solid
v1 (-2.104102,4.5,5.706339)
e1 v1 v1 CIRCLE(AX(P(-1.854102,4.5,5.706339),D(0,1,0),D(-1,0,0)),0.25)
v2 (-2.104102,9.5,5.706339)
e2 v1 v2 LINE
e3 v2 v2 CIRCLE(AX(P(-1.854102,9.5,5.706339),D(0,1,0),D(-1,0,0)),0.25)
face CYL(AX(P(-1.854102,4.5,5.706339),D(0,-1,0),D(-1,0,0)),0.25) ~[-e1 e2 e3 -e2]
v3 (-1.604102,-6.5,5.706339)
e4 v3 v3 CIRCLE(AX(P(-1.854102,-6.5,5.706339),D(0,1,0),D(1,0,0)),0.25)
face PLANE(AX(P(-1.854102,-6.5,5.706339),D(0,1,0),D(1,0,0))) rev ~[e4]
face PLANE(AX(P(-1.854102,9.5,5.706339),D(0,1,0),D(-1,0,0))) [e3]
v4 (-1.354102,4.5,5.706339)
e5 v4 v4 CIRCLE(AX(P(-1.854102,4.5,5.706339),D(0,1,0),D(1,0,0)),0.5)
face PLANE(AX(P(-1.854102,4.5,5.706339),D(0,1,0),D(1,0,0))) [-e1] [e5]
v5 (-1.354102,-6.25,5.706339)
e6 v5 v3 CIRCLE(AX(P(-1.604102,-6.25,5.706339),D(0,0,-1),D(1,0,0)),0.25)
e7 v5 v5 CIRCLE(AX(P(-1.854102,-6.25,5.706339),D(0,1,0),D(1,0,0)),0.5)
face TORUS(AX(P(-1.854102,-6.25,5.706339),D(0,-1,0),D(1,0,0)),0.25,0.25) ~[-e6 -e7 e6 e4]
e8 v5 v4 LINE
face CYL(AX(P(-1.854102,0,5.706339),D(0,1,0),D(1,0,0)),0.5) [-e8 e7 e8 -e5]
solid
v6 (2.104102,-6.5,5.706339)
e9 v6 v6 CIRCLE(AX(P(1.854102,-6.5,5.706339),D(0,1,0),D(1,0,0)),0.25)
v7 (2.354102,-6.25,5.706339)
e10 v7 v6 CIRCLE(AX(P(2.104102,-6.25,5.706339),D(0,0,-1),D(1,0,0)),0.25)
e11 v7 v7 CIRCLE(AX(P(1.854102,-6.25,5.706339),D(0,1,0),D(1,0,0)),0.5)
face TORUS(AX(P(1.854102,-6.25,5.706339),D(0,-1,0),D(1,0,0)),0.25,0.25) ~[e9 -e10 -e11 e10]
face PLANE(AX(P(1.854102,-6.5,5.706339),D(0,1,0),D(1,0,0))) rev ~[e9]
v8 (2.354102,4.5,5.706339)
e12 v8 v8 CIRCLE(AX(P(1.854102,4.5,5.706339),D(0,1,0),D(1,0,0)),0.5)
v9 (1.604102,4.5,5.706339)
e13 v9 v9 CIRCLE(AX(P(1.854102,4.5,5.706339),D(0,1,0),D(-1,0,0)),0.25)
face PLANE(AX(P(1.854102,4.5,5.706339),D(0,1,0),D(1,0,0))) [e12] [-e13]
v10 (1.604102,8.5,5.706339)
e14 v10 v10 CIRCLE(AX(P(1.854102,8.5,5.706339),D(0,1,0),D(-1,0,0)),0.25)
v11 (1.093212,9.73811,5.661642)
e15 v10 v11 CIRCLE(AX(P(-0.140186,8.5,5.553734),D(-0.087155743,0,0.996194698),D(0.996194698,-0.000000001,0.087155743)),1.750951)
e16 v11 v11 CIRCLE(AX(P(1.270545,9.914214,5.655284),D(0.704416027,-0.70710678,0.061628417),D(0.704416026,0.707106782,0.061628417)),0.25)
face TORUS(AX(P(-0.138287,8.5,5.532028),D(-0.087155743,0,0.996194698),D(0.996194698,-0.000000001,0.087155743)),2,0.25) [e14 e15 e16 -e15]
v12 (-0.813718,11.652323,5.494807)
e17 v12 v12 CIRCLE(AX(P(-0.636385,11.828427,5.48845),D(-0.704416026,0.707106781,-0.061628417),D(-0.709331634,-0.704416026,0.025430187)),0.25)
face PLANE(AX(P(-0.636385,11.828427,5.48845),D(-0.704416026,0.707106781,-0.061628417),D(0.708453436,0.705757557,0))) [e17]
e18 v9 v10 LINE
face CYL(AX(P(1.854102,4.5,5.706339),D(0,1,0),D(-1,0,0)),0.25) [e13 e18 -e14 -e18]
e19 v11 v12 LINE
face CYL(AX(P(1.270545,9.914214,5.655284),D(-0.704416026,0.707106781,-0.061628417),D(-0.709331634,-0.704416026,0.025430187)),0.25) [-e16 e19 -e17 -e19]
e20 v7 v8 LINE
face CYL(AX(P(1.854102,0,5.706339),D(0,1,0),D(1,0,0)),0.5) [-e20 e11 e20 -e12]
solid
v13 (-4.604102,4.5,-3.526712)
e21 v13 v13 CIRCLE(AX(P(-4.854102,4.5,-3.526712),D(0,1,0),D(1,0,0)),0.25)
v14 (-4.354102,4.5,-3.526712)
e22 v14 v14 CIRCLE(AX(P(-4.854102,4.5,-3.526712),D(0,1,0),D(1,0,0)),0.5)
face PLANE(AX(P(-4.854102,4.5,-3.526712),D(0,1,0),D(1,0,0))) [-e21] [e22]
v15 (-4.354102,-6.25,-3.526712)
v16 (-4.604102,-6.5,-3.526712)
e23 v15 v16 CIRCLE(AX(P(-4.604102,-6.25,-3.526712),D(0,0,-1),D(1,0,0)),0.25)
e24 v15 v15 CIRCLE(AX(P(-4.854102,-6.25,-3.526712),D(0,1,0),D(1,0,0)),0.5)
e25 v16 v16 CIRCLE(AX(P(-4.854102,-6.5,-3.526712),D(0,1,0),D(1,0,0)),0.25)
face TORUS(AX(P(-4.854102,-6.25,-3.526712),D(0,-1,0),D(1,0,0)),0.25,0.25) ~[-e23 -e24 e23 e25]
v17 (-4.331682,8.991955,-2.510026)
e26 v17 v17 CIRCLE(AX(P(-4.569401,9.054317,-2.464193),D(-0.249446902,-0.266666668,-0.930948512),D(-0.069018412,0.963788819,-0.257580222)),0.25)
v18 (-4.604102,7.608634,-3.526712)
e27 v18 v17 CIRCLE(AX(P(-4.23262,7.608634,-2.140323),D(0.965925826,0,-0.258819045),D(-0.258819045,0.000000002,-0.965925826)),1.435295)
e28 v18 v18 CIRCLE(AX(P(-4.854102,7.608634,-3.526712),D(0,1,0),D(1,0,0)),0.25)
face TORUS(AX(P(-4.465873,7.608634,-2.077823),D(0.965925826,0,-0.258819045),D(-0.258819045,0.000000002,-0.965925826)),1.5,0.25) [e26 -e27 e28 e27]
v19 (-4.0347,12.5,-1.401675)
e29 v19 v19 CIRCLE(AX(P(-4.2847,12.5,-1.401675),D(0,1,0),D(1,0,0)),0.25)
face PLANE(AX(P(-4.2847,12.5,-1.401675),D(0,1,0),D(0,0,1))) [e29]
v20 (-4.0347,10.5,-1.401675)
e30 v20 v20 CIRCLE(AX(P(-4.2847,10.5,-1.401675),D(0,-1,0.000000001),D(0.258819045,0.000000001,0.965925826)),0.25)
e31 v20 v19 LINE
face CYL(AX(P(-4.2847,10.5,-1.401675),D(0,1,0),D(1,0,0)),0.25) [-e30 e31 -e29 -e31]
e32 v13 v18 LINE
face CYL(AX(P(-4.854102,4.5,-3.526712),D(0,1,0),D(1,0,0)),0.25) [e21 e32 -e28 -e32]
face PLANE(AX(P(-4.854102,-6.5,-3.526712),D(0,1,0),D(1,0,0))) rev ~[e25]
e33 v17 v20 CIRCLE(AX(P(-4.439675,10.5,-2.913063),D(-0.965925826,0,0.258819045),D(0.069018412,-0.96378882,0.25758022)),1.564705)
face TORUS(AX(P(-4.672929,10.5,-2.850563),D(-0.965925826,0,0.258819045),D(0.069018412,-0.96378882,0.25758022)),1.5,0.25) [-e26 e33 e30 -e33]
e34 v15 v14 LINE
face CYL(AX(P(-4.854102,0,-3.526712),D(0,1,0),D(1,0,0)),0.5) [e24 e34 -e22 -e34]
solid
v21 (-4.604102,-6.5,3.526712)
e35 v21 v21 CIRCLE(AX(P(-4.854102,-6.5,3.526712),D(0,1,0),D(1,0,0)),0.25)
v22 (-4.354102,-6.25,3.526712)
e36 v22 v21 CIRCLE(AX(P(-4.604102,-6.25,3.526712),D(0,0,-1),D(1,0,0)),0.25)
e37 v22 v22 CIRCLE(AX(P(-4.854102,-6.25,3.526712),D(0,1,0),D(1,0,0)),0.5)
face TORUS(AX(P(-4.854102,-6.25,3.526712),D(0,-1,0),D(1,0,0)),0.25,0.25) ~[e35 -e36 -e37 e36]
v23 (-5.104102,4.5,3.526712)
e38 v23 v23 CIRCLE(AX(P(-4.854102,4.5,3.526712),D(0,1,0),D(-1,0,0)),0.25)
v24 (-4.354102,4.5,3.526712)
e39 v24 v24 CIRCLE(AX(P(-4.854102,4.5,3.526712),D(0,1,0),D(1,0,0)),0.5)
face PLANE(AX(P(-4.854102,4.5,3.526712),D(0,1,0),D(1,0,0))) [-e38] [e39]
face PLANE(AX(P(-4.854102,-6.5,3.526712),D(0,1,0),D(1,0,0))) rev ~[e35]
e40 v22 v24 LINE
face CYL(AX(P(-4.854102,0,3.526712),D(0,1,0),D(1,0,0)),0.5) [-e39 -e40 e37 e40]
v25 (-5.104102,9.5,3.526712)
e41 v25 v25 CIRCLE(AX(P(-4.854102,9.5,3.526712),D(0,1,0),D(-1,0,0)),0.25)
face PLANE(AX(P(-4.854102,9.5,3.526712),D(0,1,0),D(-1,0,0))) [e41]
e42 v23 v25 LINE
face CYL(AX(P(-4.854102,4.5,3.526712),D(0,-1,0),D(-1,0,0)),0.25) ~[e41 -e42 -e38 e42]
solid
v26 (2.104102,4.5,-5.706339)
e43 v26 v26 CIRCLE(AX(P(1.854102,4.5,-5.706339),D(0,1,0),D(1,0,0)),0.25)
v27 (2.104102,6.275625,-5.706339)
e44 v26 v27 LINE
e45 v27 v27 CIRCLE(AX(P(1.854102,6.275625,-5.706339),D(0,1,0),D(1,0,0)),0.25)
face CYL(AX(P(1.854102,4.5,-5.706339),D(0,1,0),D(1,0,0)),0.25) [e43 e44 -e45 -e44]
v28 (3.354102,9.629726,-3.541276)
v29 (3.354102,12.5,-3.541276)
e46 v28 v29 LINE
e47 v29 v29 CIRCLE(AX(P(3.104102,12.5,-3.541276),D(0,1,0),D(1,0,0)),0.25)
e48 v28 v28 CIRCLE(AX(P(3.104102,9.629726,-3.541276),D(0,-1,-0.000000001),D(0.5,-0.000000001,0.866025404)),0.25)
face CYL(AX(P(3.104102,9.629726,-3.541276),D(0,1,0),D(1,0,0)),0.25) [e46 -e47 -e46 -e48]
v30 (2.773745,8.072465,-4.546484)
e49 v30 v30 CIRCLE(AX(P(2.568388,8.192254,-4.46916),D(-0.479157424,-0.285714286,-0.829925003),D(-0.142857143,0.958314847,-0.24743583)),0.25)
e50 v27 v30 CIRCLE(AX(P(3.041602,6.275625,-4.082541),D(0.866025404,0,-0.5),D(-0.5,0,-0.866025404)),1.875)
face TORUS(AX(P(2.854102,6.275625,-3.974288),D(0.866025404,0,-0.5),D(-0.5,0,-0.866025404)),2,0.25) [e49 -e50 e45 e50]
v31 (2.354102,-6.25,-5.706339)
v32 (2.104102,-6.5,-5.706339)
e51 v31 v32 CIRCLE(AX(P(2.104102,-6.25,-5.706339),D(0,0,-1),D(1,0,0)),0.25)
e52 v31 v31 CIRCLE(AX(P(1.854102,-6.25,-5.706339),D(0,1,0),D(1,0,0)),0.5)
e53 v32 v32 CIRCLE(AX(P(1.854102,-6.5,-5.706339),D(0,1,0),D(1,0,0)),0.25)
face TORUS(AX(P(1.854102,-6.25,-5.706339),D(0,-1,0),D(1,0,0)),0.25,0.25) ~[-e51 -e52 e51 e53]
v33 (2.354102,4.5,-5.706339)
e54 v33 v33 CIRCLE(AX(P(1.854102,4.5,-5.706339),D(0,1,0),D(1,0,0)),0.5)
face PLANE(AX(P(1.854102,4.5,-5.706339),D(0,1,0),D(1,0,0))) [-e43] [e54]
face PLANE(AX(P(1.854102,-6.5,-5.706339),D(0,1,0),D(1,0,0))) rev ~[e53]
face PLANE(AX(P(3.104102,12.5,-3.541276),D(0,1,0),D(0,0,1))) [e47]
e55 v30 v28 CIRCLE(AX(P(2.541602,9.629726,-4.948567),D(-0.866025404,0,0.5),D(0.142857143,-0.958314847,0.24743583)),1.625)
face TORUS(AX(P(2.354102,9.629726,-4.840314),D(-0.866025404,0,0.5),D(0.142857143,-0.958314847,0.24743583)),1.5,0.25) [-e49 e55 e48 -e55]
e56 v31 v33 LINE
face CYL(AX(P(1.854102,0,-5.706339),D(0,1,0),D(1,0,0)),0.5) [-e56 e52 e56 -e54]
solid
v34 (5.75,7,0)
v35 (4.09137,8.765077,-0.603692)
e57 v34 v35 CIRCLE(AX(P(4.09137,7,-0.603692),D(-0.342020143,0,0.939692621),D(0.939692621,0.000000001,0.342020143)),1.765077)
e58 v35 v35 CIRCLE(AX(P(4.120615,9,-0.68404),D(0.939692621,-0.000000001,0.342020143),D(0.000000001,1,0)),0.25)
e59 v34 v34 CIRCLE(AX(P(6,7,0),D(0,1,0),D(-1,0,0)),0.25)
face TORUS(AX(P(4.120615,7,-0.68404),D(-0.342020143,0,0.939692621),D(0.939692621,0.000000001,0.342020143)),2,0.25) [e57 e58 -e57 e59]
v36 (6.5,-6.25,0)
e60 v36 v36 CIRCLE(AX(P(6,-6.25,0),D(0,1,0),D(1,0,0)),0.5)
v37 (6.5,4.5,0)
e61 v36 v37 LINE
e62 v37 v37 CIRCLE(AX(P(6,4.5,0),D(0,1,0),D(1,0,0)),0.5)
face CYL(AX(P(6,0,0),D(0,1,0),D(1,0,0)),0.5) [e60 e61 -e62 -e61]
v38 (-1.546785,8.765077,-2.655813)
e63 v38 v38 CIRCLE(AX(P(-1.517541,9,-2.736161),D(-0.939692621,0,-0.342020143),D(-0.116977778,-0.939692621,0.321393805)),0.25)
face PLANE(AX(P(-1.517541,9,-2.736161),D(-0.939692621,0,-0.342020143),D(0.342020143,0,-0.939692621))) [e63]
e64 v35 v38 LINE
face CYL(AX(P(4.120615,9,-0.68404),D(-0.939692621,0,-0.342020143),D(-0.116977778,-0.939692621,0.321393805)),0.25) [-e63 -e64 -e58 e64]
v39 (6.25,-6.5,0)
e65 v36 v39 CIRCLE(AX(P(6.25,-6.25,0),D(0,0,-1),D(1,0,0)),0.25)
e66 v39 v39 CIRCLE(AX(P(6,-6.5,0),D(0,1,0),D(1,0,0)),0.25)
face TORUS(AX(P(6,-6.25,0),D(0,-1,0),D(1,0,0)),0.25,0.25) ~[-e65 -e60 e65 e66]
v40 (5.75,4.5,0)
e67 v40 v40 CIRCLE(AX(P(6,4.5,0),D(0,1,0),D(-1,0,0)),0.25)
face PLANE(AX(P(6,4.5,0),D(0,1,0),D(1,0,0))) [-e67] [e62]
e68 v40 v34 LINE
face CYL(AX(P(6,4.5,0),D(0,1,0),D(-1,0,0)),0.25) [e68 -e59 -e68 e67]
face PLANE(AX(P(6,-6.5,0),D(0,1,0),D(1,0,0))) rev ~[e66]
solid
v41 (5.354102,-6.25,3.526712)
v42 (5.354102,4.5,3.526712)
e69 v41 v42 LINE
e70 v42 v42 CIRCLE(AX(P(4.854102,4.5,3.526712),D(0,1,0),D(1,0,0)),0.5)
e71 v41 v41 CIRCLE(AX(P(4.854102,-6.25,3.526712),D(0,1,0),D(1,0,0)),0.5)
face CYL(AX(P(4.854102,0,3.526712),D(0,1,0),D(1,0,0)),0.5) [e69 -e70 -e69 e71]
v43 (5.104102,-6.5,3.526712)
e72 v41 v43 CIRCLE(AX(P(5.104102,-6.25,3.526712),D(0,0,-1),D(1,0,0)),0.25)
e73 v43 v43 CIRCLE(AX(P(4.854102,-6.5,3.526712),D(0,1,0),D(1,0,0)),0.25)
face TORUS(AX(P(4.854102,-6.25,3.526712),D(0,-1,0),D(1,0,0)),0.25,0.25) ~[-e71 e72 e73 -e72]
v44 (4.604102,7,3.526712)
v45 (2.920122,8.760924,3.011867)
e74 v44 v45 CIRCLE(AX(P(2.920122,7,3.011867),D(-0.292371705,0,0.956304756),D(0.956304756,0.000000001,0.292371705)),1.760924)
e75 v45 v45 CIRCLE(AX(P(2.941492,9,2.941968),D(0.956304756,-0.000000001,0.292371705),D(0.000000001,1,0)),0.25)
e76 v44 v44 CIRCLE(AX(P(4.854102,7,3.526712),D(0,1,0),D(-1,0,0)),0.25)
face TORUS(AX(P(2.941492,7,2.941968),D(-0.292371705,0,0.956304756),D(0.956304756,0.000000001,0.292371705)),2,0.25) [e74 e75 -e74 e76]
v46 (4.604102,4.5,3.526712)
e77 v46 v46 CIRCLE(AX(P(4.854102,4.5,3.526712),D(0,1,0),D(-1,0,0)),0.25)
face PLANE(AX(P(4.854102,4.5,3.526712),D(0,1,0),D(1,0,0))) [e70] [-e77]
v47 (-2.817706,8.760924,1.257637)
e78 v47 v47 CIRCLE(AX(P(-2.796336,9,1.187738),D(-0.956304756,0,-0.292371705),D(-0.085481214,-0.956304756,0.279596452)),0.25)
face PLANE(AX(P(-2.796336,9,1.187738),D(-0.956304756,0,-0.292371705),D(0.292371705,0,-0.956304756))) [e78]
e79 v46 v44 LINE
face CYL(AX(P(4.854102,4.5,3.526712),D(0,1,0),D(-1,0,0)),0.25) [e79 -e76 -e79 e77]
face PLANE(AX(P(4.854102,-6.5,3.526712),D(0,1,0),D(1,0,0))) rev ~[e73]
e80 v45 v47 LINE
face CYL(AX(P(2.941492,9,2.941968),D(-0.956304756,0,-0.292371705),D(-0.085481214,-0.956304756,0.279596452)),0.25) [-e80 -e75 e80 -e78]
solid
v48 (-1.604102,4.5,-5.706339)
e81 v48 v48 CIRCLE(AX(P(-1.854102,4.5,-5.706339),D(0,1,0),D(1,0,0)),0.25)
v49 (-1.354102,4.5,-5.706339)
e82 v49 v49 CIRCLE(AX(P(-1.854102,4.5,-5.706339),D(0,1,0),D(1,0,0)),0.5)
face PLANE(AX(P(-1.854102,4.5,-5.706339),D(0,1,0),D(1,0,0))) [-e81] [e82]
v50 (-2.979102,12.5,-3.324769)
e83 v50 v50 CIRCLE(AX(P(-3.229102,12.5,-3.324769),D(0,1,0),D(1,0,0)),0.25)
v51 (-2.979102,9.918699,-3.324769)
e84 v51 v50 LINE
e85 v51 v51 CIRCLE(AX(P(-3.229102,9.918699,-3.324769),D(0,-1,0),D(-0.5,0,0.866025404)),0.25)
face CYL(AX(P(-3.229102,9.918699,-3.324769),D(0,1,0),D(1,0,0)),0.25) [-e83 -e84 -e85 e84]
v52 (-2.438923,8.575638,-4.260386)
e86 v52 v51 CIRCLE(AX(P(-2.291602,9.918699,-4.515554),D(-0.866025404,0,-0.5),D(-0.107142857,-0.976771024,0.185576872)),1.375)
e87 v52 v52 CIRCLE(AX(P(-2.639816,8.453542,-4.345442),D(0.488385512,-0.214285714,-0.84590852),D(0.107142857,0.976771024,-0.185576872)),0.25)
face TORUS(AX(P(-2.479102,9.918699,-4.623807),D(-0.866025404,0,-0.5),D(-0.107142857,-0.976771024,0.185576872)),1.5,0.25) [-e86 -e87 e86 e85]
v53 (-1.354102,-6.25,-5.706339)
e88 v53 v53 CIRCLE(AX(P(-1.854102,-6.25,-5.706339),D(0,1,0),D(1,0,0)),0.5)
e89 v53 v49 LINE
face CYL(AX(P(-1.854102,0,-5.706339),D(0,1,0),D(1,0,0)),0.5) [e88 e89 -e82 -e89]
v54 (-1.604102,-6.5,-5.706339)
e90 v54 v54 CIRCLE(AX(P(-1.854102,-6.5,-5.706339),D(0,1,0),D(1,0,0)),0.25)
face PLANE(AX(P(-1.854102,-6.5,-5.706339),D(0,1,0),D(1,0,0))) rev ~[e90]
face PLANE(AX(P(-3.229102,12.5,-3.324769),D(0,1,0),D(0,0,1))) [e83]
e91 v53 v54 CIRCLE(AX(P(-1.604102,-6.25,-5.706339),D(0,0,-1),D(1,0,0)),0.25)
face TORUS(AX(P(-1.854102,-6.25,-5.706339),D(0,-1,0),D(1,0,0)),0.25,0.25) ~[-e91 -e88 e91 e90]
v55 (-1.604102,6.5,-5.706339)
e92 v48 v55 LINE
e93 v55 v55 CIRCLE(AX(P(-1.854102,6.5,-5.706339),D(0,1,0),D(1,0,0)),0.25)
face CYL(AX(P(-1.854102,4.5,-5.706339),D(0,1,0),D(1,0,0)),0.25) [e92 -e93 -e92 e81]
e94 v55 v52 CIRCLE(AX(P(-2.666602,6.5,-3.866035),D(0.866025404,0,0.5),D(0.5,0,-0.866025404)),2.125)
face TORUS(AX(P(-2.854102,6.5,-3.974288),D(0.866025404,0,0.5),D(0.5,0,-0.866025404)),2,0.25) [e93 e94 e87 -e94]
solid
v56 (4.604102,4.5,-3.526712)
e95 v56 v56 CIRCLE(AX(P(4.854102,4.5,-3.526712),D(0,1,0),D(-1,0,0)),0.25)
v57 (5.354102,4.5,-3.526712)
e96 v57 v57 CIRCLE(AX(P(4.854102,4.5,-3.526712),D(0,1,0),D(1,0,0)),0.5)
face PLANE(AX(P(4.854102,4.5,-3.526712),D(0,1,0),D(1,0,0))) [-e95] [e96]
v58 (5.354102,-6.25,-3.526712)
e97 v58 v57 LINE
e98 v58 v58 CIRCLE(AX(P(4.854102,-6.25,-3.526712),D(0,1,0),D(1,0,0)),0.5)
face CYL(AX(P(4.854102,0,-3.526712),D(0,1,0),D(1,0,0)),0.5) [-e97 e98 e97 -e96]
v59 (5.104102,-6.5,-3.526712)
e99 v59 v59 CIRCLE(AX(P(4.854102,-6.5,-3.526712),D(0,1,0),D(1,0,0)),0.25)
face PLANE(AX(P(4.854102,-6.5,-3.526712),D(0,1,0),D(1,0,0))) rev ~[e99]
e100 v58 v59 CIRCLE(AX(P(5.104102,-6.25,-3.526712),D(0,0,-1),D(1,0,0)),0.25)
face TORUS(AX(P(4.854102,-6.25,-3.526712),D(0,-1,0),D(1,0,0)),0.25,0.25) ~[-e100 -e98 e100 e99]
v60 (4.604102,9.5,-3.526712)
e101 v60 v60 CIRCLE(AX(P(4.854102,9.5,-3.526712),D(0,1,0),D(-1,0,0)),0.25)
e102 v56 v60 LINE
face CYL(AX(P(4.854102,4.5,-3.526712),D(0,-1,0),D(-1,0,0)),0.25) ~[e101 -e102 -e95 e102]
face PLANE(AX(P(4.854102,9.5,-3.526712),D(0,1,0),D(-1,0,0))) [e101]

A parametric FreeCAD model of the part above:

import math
import FreeCAD as App
import Part
import Sketcher

V = App.Vector
Q = App.Units.Quantity


def edges_at(feature, points):
    """Names of the edges that pass closest to the given points."""
    edges = feature.Shape.Edges
    near = lambda p: min(range(len(edges)), key=lambda i: edges[i].distToShape(Part.Vertex(*p))[0])
    return sorted({f"Edge{near(p) + 1}" for p in points})

doc = App.newDocument("Part")
body = doc.addObject("PartDesign::Body", "Body")

# Sketch on XZ plane
sketch1 = doc.addObject("Sketcher::SketchObject", "Sketch")
body.addObject(sketch1)
sketch1.AttachmentSupport = (doc.XZ_Plane, [""])
sketch1.MapMode = "FlatFace"
sketch1.addGeometry(Part.Circle(V(6, 0, 0), V(0, 0, 1), 0.5), False)
sketch1.addConstraint([
    Sketcher.Constraint("PointOnObject", 0, 3, -1),
    Sketcher.Constraint("Diameter", 0, Q("1 mm")),
    Sketcher.Constraint("DistanceX", -1, 1, 0, 3, Q("6 mm")),
])
pad1 = doc.addObject("PartDesign::Pad", "Pad")
body.addObject(pad1)
pad1.Profile = sketch1
pad1.Type = "TwoLengths"
pad1.Length = 4.5
pad1.Length2 = 6.5
pad1.Reversed = True
doc.recompute()

fillet = doc.addObject("PartDesign::Fillet", "Fillet")
body.addObject(fillet)
fillet.Base = (pad1, edges_at(pad1, [(5.5, -6.5, 0)]))
fillet.Radius = 0.25

# Sketch on XZ plane
sketch2 = doc.addObject("Sketcher::SketchObject", "Sketch001")
body.addObject(sketch2)
sketch2.AttachmentSupport = (doc.XZ_Plane, [""])
sketch2.MapMode = "FlatFace"
sketch2.AttachmentOffset = App.Placement(V(0, 0, -4.5), App.Rotation())
sketch2.addGeometry(Part.Circle(V(6, 0, 0), V(0, 0, 1), 0.25), False)
sketch2.addConstraint([
    Sketcher.Constraint("PointOnObject", 0, 3, -1),
    Sketcher.Constraint("Diameter", 0, Q("0.5 mm")),
    Sketcher.Constraint("DistanceX", -1, 1, 0, 3, Q("6 mm")),
])

# Sketch on an angled plane
sketch3 = doc.addObject("Sketcher::SketchObject", "Sketch002")
body.addObject(sketch3)
sketch3.Placement = App.Placement(V(0.701867, 0, -1.928363), App.Rotation(V(-0.939692621, 0, -0.342020143), V(0, 1, 0), V(0.342020143, 0, -0.939692621), "ZXY"))
sketch3.addGeometry([
    Part.LineSegment(V(-5.6, 4.5, 0), V(-5.6, 7, 0)),
    Part.ArcOfCircle(Part.Circle(V(-3.6, 7, 0), V(0, 0, 1), 2), math.radians(90), math.radians(180)),
    Part.LineSegment(V(-3.6, 9, 0), V(2.4, 9, 0)),
], False)
sketch3.addConstraint([
    Sketcher.Constraint("Tangent", 0, 2, 1, 2),
    Sketcher.Constraint("Tangent", 1, 1, 2, 1),
    Sketcher.Constraint("Vertical", 0),
    Sketcher.Constraint("Horizontal", 2),
    Sketcher.Constraint("Radius", 1, Q("2 mm")),
    Sketcher.Constraint("DistanceX", 2, 1, 2, 2, Q("6 mm")),
    Sketcher.Constraint("DistanceY", 0, 1, 0, 2, Q("2.5 mm")),
    Sketcher.Constraint("DistanceY", -1, 1, 1, 3, Q("7 mm")),
    Sketcher.Constraint("DistanceX", 1, 3, -1, 1, Q("3.638156 mm")),
])
doc.recompute()

additivepipe = doc.addObject("PartDesign::AdditivePipe", "AdditivePipe")
body.addObject(additivepipe)
additivepipe.Profile = sketch2
additivepipe.Spine = (sketch3, ["Edge1", "Edge2", "Edge3"])
body2 = doc.addObject("PartDesign::Body", "Body001")

# Sketch on XZ plane
sketch4 = doc.addObject("Sketcher::SketchObject", "Sketch003")
body2.addObject(sketch4)
sketch4.AttachmentSupport = (doc.getObject("XZ_Plane001"), [""])
sketch4.MapMode = "FlatFace"
sketch4.addGeometry(Part.Circle(V(4.9, 3.5, 0), V(0, 0, 1), 0.5), False)
sketch4.addConstraint([
    Sketcher.Constraint("Diameter", 0, Q("1 mm")),
    Sketcher.Constraint("DistanceX", -1, 1, 0, 3, Q("4.854102 mm")),
    Sketcher.Constraint("DistanceY", -1, 1, 0, 3, Q("3.526712 mm")),
])
pad2 = doc.addObject("PartDesign::Pad", "Pad001")
body2.addObject(pad2)
pad2.Profile = sketch4
pad2.Type = "TwoLengths"
pad2.Length = 4.5
pad2.Length2 = 6.5
pad2.Reversed = True
doc.recompute()

fillet2 = doc.addObject("PartDesign::Fillet", "Fillet001")
body2.addObject(fillet2)
fillet2.Base = (pad2, edges_at(pad2, [(4.354, -6.5, 3.527)]))
fillet2.Radius = 0.25

# Sketch on XZ plane
sketch5 = doc.addObject("Sketcher::SketchObject", "Sketch004")
body2.addObject(sketch5)
sketch5.AttachmentSupport = (doc.getObject("XZ_Plane001"), [""])
sketch5.MapMode = "FlatFace"
sketch5.AttachmentOffset = App.Placement(V(0, 0, -4.5), App.Rotation())
sketch5.addGeometry(Part.Circle(V(4.85, 3.53, 0), V(0, 0, 1), 0.25), False)
sketch5.addConstraint([
    Sketcher.Constraint("Diameter", 0, Q("0.5 mm")),
    Sketcher.Constraint("DistanceX", -1, 1, 0, 3, Q("4.854102 mm")),
    Sketcher.Constraint("DistanceY", -1, 1, 0, 3, Q("3.526712 mm")),
])

# Sketch on an angled plane
sketch6 = doc.addObject("Sketcher::SketchObject", "Sketch005")
body2.addObject(sketch6)
sketch6.Placement = App.Placement(V(-0.571121, 0, 1.868054), App.Rotation(V(-0.956304756, 0, -0.292371705), V(0, 1, 0), V(0.292371705, 0, -0.956304756), "ZXY"))
sketch6.addGeometry([
    Part.LineSegment(V(-5.7, 4.5, 0), V(-5.7, 7, 0)),
    Part.ArcOfCircle(Part.Circle(V(-3.7, 7, 0), V(0, 0, 1), 2), math.radians(90), math.radians(180)),
    Part.LineSegment(V(-3.7, 9, 0), V(2.3, 9, 0)),
], False)
sketch6.addConstraint([
    Sketcher.Constraint("Tangent", 0, 2, 1, 2),
    Sketcher.Constraint("Tangent", 1, 1, 2, 1),
    Sketcher.Constraint("Vertical", 0),
    Sketcher.Constraint("Horizontal", 2),
    Sketcher.Constraint("Radius", 1, Q("2 mm")),
    Sketcher.Constraint("DistanceX", 2, 1, 2, 2, Q("6 mm")),
    Sketcher.Constraint("DistanceY", 0, 1, 0, 2, Q("2.5 mm")),
    Sketcher.Constraint("DistanceY", -1, 1, 1, 3, Q("7 mm")),
    Sketcher.Constraint("DistanceX", 1, 3, -1, 1, Q("3.673111 mm")),
])
doc.recompute()

additivepipe2 = doc.addObject("PartDesign::AdditivePipe", "AdditivePipe001")
body2.addObject(additivepipe2)
additivepipe2.Profile = sketch5
additivepipe2.Spine = (sketch6, ["Edge1", "Edge2", "Edge3"])
body3 = doc.addObject("PartDesign::Body", "Body002")

# Sketch on XZ plane
sketch7 = doc.addObject("Sketcher::SketchObject", "Sketch006")
body3.addObject(sketch7)
sketch7.AttachmentSupport = (doc.getObject("XZ_Plane002"), [""])
sketch7.MapMode = "FlatFace"
sketch7.addGeometry(Part.Circle(V(1.9, 5.7, 0), V(0, 0, 1), 0.5), False)
sketch7.addConstraint([
    Sketcher.Constraint("Diameter", 0, Q("1 mm")),
    Sketcher.Constraint("DistanceX", -1, 1, 0, 3, Q("1.854102 mm")),
    Sketcher.Constraint("DistanceY", -1, 1, 0, 3, Q("5.706339 mm")),
])
pad3 = doc.addObject("PartDesign::Pad", "Pad002")
body3.addObject(pad3)
pad3.Profile = sketch7
pad3.Type = "TwoLengths"
pad3.Length = 4.5
pad3.Length2 = 6.5
pad3.Reversed = True
doc.recompute()

fillet3 = doc.addObject("PartDesign::Fillet", "Fillet002")
body3.addObject(fillet3)
fillet3.Base = (pad3, edges_at(pad3, [(1.354, -6.5, 5.706)]))
fillet3.Radius = 0.25

# Sketch on XZ plane
sketch8 = doc.addObject("Sketcher::SketchObject", "Sketch007")
body3.addObject(sketch8)
sketch8.AttachmentSupport = (doc.getObject("XZ_Plane002"), [""])
sketch8.MapMode = "FlatFace"
sketch8.AttachmentOffset = App.Placement(V(0, 0, -4.5), App.Rotation())
sketch8.addGeometry(Part.Circle(V(1.85, 5.71, 0), V(0, 0, 1), 0.25), False)
sketch8.addConstraint([
    Sketcher.Constraint("Diameter", 0, Q("0.5 mm")),
    Sketcher.Constraint("DistanceX", -1, 1, 0, 3, Q("1.854102 mm")),
    Sketcher.Constraint("DistanceY", -1, 1, 0, 3, Q("5.706339 mm")),
])

# Sketch on an angled plane
sketch9 = doc.addObject("Sketcher::SketchObject", "Sketch008")
body3.addObject(sketch9)
sketch9.Placement = App.Placement(V(-0.481364, 0, 5.502012), App.Rotation(V(0.996194698, 0, 0.087155743), V(0, 1, 0), V(-0.087155743, 0, 0.996194698), "ZXY"))
sketch9.addGeometry([
    Part.LineSegment(V(2.3, 4.5, 0), V(2.3, 8.5, 0)),
    Part.ArcOfCircle(Part.Circle(V(0.3, 8.5, 0), V(0, 0, 1), 2), math.radians(0), math.radians(45)),
    Part.LineSegment(V(1.8, 9.9, 0), V(-0.2, 11.8, 0)),
], False)
sketch9.addConstraint([
    Sketcher.Constraint("Tangent", 0, 2, 1, 1),
    Sketcher.Constraint("Tangent", 1, 2, 2, 1),
    Sketcher.Constraint("Vertical", 0),
    Sketcher.Constraint("Radius", 1, Q("2 mm")),
    Sketcher.Constraint("DistanceY", 0, 1, 0, 2, Q("4 mm")),
    Sketcher.Constraint("Angle", 2, Q("135 deg")),
    Sketcher.Constraint("DistanceY", -1, 1, 1, 3, Q("8.5 mm")),
    Sketcher.Constraint("DistanceX", 2, 2, 1, 3, Q("0.5 mm")),
    Sketcher.Constraint("DistanceX", -1, 1, 1, 2, Q("1.7586 mm")),
])
doc.recompute()

additivepipe3 = doc.addObject("PartDesign::AdditivePipe", "AdditivePipe002")
body3.addObject(additivepipe3)
additivepipe3.Profile = sketch8
additivepipe3.Spine = (sketch9, ["Edge1", "Edge2", "Edge3"])
body4 = doc.addObject("PartDesign::Body", "Body003")

# Sketch on XZ plane
sketch10 = doc.addObject("Sketcher::SketchObject", "Sketch009")
body4.addObject(sketch10)
sketch10.AttachmentSupport = (doc.getObject("XZ_Plane003"), [""])
sketch10.MapMode = "FlatFace"
sketch10.addGeometry(Part.Circle(V(-1.9, 5.7, 0), V(0, 0, 1), 0.5), False)
sketch10.addConstraint([
    Sketcher.Constraint("Diameter", 0, Q("1 mm")),
    Sketcher.Constraint("DistanceX", 0, 3, -1, 1, Q("1.854102 mm")),
    Sketcher.Constraint("DistanceY", -1, 1, 0, 3, Q("5.706339 mm")),
])
pad4 = doc.addObject("PartDesign::Pad", "Pad003")
body4.addObject(pad4)
pad4.Profile = sketch10
pad4.Type = "TwoLengths"
pad4.Length = 4.5
pad4.Length2 = 6.5
pad4.Reversed = True
body5 = doc.addObject("PartDesign::Body", "Body004")

# Sketch on XZ plane
sketch11 = doc.addObject("Sketcher::SketchObject", "Sketch010")
body5.addObject(sketch11)
sketch11.AttachmentSupport = (doc.getObject("XZ_Plane004"), [""])
sketch11.MapMode = "FlatFace"
sketch11.addGeometry(Part.Circle(V(-4.9, 3.5, 0), V(0, 0, 1), 0.5), False)
sketch11.addConstraint([
    Sketcher.Constraint("Diameter", 0, Q("1 mm")),
    Sketcher.Constraint("DistanceX", 0, 3, -1, 1, Q("4.854102 mm")),
    Sketcher.Constraint("DistanceY", -1, 1, 0, 3, Q("3.526712 mm")),
])
pad5 = doc.addObject("PartDesign::Pad", "Pad004")
body5.addObject(pad5)
pad5.Profile = sketch11
pad5.Type = "TwoLengths"
pad5.Length = 4.5
pad5.Length2 = 6.5
pad5.Reversed = True
body6 = doc.addObject("PartDesign::Body", "Body005")

# Sketch on XZ plane
sketch12 = doc.addObject("Sketcher::SketchObject", "Sketch011")
body6.addObject(sketch12)
sketch12.AttachmentSupport = (doc.getObject("XZ_Plane005"), [""])
sketch12.MapMode = "FlatFace"
sketch12.addGeometry(Part.Circle(V(-4.9, -3.5, 0), V(0, 0, 1), 0.5), False)
sketch12.addConstraint([
    Sketcher.Constraint("Diameter", 0, Q("1 mm")),
    Sketcher.Constraint("DistanceX", 0, 3, -1, 1, Q("4.854102 mm")),
    Sketcher.Constraint("DistanceY", 0, 3, -1, 1, Q("3.526712 mm")),
])
pad6 = doc.addObject("PartDesign::Pad", "Pad005")
body6.addObject(pad6)
pad6.Profile = sketch12
pad6.Type = "TwoLengths"
pad6.Length = 4.5
pad6.Length2 = 6.5
pad6.Reversed = True
doc.recompute()

fillet4 = doc.addObject("PartDesign::Fillet", "Fillet003")
body6.addObject(fillet4)
fillet4.Base = (pad6, edges_at(pad6, [(-5.354, -6.5, -3.527)]))
fillet4.Radius = 0.25

# Sketch on XZ plane
sketch13 = doc.addObject("Sketcher::SketchObject", "Sketch012")
body6.addObject(sketch13)
sketch13.AttachmentSupport = (doc.getObject("XZ_Plane005"), [""])
sketch13.MapMode = "FlatFace"
sketch13.AttachmentOffset = App.Placement(V(0, 0, -4.5), App.Rotation())
sketch13.addGeometry(Part.Circle(V(-4.85, -3.53, 0), V(0, 0, 1), 0.25), False)
sketch13.addConstraint([
    Sketcher.Constraint("Diameter", 0, Q("0.5 mm")),
    Sketcher.Constraint("DistanceX", 0, 3, -1, 1, Q("4.854102 mm")),
    Sketcher.Constraint("DistanceY", 0, 3, -1, 1, Q("3.526712 mm")),
])

# Sketch on an angled plane
sketch14 = doc.addObject("Sketcher::SketchObject", "Sketch013")
body6.addObject(sketch14)
sketch14.Placement = App.Placement(V(-3.647261, 0, 0.977281), App.Rotation(V(0.258819045, 0, 0.965925826), V(0, 0.999999999, 0), V(-0.965925826, 0, 0.258819045), "ZXY"))
sketch14.addGeometry([
    Part.LineSegment(V(-4.7, 4.5, 0), V(-4.7, 7.6, 0)),
    Part.ArcOfCircle(Part.Circle(V(-3.2, 7.6, 0), V(0, 0, 1), 1.5), math.radians(105), math.radians(180)),
    Part.ArcOfCircle(Part.Circle(V(-4, 10.5, 0), V(0, 0, 1), 1.5), math.radians(-75), math.radians(0)),
    Part.LineSegment(V(-2.5, 10.5, 0), V(-2.5, 12.5, 0)),
], False)
sketch14.addConstraint([
    Sketcher.Constraint("Tangent", 0, 2, 1, 2),
    Sketcher.Constraint("Tangent", 1, 1, 2, 1),
    Sketcher.Constraint("Tangent", 2, 2, 3, 1),
    Sketcher.Constraint("Vertical", 0),
    Sketcher.Constraint("Vertical", 3),
    Sketcher.Constraint("Equal", 1, 2),
    Sketcher.Constraint("Radius", 1, Q("1.5 mm")),
    Sketcher.Constraint("DistanceY", 3, 1, 3, 2, Q("2 mm")),
    Sketcher.Constraint("DistanceY", 0, 1, 2, 3, Q("6 mm")),
    Sketcher.Constraint("DistanceY", -1, 1, 2, 3, Q("10.5 mm")),
    Sketcher.Constraint("DistanceX", 2, 3, 1, 3, Q("0.8 mm")),
    Sketcher.Constraint("DistanceX", 1, 3, -1, 1, Q("3.162876 mm")),
])
doc.recompute()

additivepipe4 = doc.addObject("PartDesign::AdditivePipe", "AdditivePipe003")
body6.addObject(additivepipe4)
additivepipe4.Profile = sketch13
additivepipe4.Spine = (sketch14, ["Edge1", "Edge2", "Edge3", "Edge4"])
body7 = doc.addObject("PartDesign::Body", "Body006")

# Sketch on XZ plane
sketch15 = doc.addObject("Sketcher::SketchObject", "Sketch014")
body7.addObject(sketch15)
sketch15.AttachmentSupport = (doc.getObject("XZ_Plane006"), [""])
sketch15.MapMode = "FlatFace"
sketch15.addGeometry(Part.Circle(V(-1.9, -5.7, 0), V(0, 0, 1), 0.5), False)
sketch15.addConstraint([
    Sketcher.Constraint("Diameter", 0, Q("1 mm")),
    Sketcher.Constraint("DistanceX", 0, 3, -1, 1, Q("1.854102 mm")),
    Sketcher.Constraint("DistanceY", 0, 3, -1, 1, Q("5.706339 mm")),
])
pad7 = doc.addObject("PartDesign::Pad", "Pad006")
body7.addObject(pad7)
pad7.Profile = sketch15
pad7.Type = "TwoLengths"
pad7.Length = 4.5
pad7.Length2 = 6.5
pad7.Reversed = True
doc.recompute()

fillet5 = doc.addObject("PartDesign::Fillet", "Fillet004")
body7.addObject(fillet5)
fillet5.Base = (pad7, edges_at(pad7, [(-2.354, -6.5, -5.706)]))
fillet5.Radius = 0.25

# Sketch on XZ plane
sketch16 = doc.addObject("Sketcher::SketchObject", "Sketch015")
body7.addObject(sketch16)
sketch16.AttachmentSupport = (doc.getObject("XZ_Plane006"), [""])
sketch16.MapMode = "FlatFace"
sketch16.AttachmentOffset = App.Placement(V(0, 0, -4.5), App.Rotation())
sketch16.addGeometry(Part.Circle(V(-1.85, -5.71, 0), V(0, 0, 1), 0.25), False)
sketch16.addConstraint([
    Sketcher.Constraint("Diameter", 0, Q("0.5 mm")),
    Sketcher.Constraint("DistanceX", 0, 3, -1, 1, Q("1.854102 mm")),
    Sketcher.Constraint("DistanceY", 0, 3, -1, 1, Q("5.706339 mm")),
])

# Sketch on an angled plane
sketch17 = doc.addObject("Sketcher::SketchObject", "Sketch016")
body7.addObject(sketch17)
sketch17.Placement = App.Placement(V(-3.861494, 0, -2.229434), App.Rotation(V(0.5, 0, -0.866025404), V(0, 1, 0), V(0.866025404, 0, 0.5), "ZXY"))
sketch17.addGeometry([
    Part.LineSegment(V(4, 4.5, 0), V(4, 6.5, 0)),
    Part.ArcOfCircle(Part.Circle(V(2, 6.5, 0), V(0, 0, 1), 2), math.radians(0), math.radians(78)),
    Part.ArcOfCircle(Part.Circle(V(2.8, 9.9, 0), V(0, 0, 1), 1.5), math.radians(180), math.radians(258)),
    Part.LineSegment(V(1.3, 9.9, 0), V(1.3, 12.5, 0)),
], False)
sketch17.addConstraint([
    Sketcher.Constraint("Tangent", 0, 2, 1, 1),
    Sketcher.Constraint("Tangent", 1, 2, 2, 2),
    Sketcher.Constraint("Tangent", 2, 1, 3, 1),
    Sketcher.Constraint("Vertical", 0),
    Sketcher.Constraint("Vertical", 3),
    Sketcher.Constraint("Radius", 1, Q("2 mm")),
    Sketcher.Constraint("Radius", 2, Q("1.5 mm")),
    Sketcher.Constraint("DistanceY", 0, 1, 0, 2, Q("2 mm")),
    Sketcher.Constraint("DistanceY", 1, 3, 3, 2, Q("6 mm")),
    Sketcher.Constraint("DistanceY", -1, 1, 1, 3, Q("6.5 mm")),
    Sketcher.Constraint("DistanceX", 1, 3, 2, 3, Q("0.75 mm")),
    Sketcher.Constraint("DistanceX", -1, 1, 1, 3, Q("2.014784 mm")),
])
doc.recompute()

additivepipe5 = doc.addObject("PartDesign::AdditivePipe", "AdditivePipe004")
body7.addObject(additivepipe5)
additivepipe5.Profile = sketch16
additivepipe5.Spine = (sketch17, ["Edge1", "Edge2", "Edge3", "Edge4"])
body8 = doc.addObject("PartDesign::Body", "Body007")

# Sketch on XZ plane
sketch18 = doc.addObject("Sketcher::SketchObject", "Sketch017")
body8.addObject(sketch18)
sketch18.AttachmentSupport = (doc.getObject("XZ_Plane007"), [""])
sketch18.MapMode = "FlatFace"
sketch18.addGeometry(Part.Circle(V(1.9, -5.7, 0), V(0, 0, 1), 0.5), False)
sketch18.addConstraint([
    Sketcher.Constraint("Diameter", 0, Q("1 mm")),
    Sketcher.Constraint("DistanceX", -1, 1, 0, 3, Q("1.854102 mm")),
    Sketcher.Constraint("DistanceY", 0, 3, -1, 1, Q("5.706339 mm")),
])
pad8 = doc.addObject("PartDesign::Pad", "Pad007")
body8.addObject(pad8)
pad8.Profile = sketch18
pad8.Type = "TwoLengths"
pad8.Length = 4.5
pad8.Length2 = 6.5
pad8.Reversed = True
doc.recompute()

fillet6 = doc.addObject("PartDesign::Fillet", "Fillet005")
body8.addObject(fillet6)
fillet6.Base = (pad8, edges_at(pad8, [(1.354, -6.5, -5.706)]))
fillet6.Radius = 0.25

# Sketch on XZ plane
sketch19 = doc.addObject("Sketcher::SketchObject", "Sketch018")
body8.addObject(sketch19)
sketch19.AttachmentSupport = (doc.getObject("XZ_Plane007"), [""])
sketch19.MapMode = "FlatFace"
sketch19.AttachmentOffset = App.Placement(V(0, 0, -4.5), App.Rotation())
sketch19.addGeometry(Part.Circle(V(1.85, -5.71, 0), V(0, 0, 1), 0.25), False)
sketch19.addConstraint([
    Sketcher.Constraint("Diameter", 0, Q("0.5 mm")),
    Sketcher.Constraint("DistanceX", -1, 1, 0, 3, Q("1.854102 mm")),
    Sketcher.Constraint("DistanceY", 0, 3, -1, 1, Q("5.706339 mm")),
])

# Sketch on an angled plane
sketch20 = doc.addObject("Sketcher::SketchObject", "Sketch019")
body8.addObject(sketch20)
sketch20.Placement = App.Placement(V(3.861494, 0, -2.229434), App.Rotation(V(-0.5, 0, -0.866025404), V(0, 1, 0), V(0.866025404, 0, -0.5), "ZXY"))
sketch20.addGeometry([
    Part.LineSegment(V(4, 4.5, 0), V(4, 6.3, 0)),
    Part.ArcOfCircle(Part.Circle(V(2, 6.3, 0), V(0, 0, 1), 2), math.radians(0), math.radians(73)),
    Part.ArcOfCircle(Part.Circle(V(3, 9.6, 0), V(0, 0, 1), 1.5), math.radians(-180), math.radians(-107)),
    Part.LineSegment(V(1.5, 9.6, 0), V(1.5, 12.5, 0)),
], False)
sketch20.addConstraint([
    Sketcher.Constraint("Tangent", 0, 2, 1, 1),
    Sketcher.Constraint("Tangent", 1, 2, 2, 2),
    Sketcher.Constraint("Tangent", 2, 1, 3, 1),
    Sketcher.Constraint("Vertical", 0),
    Sketcher.Constraint("Vertical", 3),
    Sketcher.Constraint("Radius", 1, Q("2 mm")),
    Sketcher.Constraint("Radius", 2, Q("1.5 mm")),
    Sketcher.Constraint("DistanceX", 1, 3, 2, 3, Q("1 mm")),
    Sketcher.Constraint("DistanceY", -1, 1, 0, 1, Q("4.5 mm")),
    Sketcher.Constraint("DistanceY", -1, 1, 3, 2, Q("12.5 mm")),
    Sketcher.Constraint("DistanceY", 0, 1, 0, 2, Q("1.775625 mm")),
    Sketcher.Constraint("DistanceX", -1, 1, 1, 3, Q("2.014784 mm")),
])
doc.recompute()

additivepipe6 = doc.addObject("PartDesign::AdditivePipe", "AdditivePipe005")
body8.addObject(additivepipe6)
additivepipe6.Profile = sketch19
additivepipe6.Spine = (sketch20, ["Edge1", "Edge2", "Edge3", "Edge4"])
body9 = doc.addObject("PartDesign::Body", "Body008")

# Sketch on XZ plane
sketch21 = doc.addObject("Sketcher::SketchObject", "Sketch020")
body9.addObject(sketch21)
sketch21.AttachmentSupport = (doc.getObject("XZ_Plane008"), [""])
sketch21.MapMode = "FlatFace"
sketch21.addGeometry(Part.Circle(V(4.9, -3.5, 0), V(0, 0, 1), 0.5), False)
sketch21.addConstraint([
    Sketcher.Constraint("Diameter", 0, Q("1 mm")),
    Sketcher.Constraint("DistanceX", -1, 1, 0, 3, Q("4.854102 mm")),
    Sketcher.Constraint("DistanceY", 0, 3, -1, 1, Q("3.526712 mm")),
])
pad9 = doc.addObject("PartDesign::Pad", "Pad008")
body9.addObject(pad9)
pad9.Profile = sketch21
pad9.Type = "TwoLengths"
pad9.Length = 4.5
pad9.Length2 = 6.5
pad9.Reversed = True
body4.AllowCompound = True
doc.recompute()

boolean = doc.addObject("PartDesign::Boolean", "Boolean")
body4.addObject(boolean)
boolean.Type = "Fuse"
boolean.addObjects([body5])
doc.recompute()

boolean2 = doc.addObject("PartDesign::Boolean", "Boolean001")
body4.addObject(boolean2)
boolean2.Type = "Fuse"
boolean2.addObjects([body9])

# Sketch on XZ plane
sketch22 = doc.addObject("Sketcher::SketchObject", "Sketch021")
body4.addObject(sketch22)
sketch22.AttachmentSupport = (doc.getObject("XZ_Plane003"), [""])
sketch22.MapMode = "FlatFace"
sketch22.AttachmentOffset = App.Placement(V(0, 0, -4.5), App.Rotation())
sketch22.addGeometry([
    Part.Circle(V(-4.85, 3.53, 0), V(0, 0, 1), 0.25),
    Part.Circle(V(-1.85, 5.71, 0), V(0, 0, 1), 0.25),
    Part.Circle(V(4.85, -3.53, 0), V(0, 0, 1), 0.25),
], False)
sketch22.addConstraint([
    Sketcher.Constraint("Equal", 0, 1),
    Sketcher.Constraint("Equal", 1, 2),
    Sketcher.Constraint("Symmetric", 0, 3, 2, 3, -1, 1),
    Sketcher.Constraint("Diameter", 0, Q("0.5 mm")),
    Sketcher.Constraint("DistanceX", 0, 3, 1, 3, Q("3 mm")),
    Sketcher.Constraint("DistanceX", 0, 3, -1, 1, Q("4.854102 mm")),
    Sketcher.Constraint("DistanceY", -1, 1, 0, 3, Q("3.526712 mm")),
    Sketcher.Constraint("DistanceY", -1, 1, 1, 3, Q("5.706339 mm")),
])
pad10 = doc.addObject("PartDesign::Pad", "Pad009")
body4.addObject(pad10)
pad10.Profile = sketch22
pad10.Length = 5
pad10.Reversed = True
doc.recompute()

fillet7 = doc.addObject("PartDesign::Fillet", "Fillet006")
body4.addObject(fillet7)
fillet7.Base = (pad10, edges_at(pad10, [(4.354, -6.5, -3.527)]))
fillet7.Radius = 0.25
doc.recompute()

fillet8 = doc.addObject("PartDesign::Fillet", "Fillet007")
body4.addObject(fillet8)
fillet8.Base = (fillet7, edges_at(fillet7, [(-5.354, -6.5, 3.527)]))
fillet8.Radius = 0.25
doc.recompute()

fillet9 = doc.addObject("PartDesign::Fillet", "Fillet008")
body4.addObject(fillet9)
fillet9.Base = (fillet8, edges_at(fillet8, [(-2.354, -6.5, 5.706)]))
fillet9.Radius = 0.25

doc.recompute()
